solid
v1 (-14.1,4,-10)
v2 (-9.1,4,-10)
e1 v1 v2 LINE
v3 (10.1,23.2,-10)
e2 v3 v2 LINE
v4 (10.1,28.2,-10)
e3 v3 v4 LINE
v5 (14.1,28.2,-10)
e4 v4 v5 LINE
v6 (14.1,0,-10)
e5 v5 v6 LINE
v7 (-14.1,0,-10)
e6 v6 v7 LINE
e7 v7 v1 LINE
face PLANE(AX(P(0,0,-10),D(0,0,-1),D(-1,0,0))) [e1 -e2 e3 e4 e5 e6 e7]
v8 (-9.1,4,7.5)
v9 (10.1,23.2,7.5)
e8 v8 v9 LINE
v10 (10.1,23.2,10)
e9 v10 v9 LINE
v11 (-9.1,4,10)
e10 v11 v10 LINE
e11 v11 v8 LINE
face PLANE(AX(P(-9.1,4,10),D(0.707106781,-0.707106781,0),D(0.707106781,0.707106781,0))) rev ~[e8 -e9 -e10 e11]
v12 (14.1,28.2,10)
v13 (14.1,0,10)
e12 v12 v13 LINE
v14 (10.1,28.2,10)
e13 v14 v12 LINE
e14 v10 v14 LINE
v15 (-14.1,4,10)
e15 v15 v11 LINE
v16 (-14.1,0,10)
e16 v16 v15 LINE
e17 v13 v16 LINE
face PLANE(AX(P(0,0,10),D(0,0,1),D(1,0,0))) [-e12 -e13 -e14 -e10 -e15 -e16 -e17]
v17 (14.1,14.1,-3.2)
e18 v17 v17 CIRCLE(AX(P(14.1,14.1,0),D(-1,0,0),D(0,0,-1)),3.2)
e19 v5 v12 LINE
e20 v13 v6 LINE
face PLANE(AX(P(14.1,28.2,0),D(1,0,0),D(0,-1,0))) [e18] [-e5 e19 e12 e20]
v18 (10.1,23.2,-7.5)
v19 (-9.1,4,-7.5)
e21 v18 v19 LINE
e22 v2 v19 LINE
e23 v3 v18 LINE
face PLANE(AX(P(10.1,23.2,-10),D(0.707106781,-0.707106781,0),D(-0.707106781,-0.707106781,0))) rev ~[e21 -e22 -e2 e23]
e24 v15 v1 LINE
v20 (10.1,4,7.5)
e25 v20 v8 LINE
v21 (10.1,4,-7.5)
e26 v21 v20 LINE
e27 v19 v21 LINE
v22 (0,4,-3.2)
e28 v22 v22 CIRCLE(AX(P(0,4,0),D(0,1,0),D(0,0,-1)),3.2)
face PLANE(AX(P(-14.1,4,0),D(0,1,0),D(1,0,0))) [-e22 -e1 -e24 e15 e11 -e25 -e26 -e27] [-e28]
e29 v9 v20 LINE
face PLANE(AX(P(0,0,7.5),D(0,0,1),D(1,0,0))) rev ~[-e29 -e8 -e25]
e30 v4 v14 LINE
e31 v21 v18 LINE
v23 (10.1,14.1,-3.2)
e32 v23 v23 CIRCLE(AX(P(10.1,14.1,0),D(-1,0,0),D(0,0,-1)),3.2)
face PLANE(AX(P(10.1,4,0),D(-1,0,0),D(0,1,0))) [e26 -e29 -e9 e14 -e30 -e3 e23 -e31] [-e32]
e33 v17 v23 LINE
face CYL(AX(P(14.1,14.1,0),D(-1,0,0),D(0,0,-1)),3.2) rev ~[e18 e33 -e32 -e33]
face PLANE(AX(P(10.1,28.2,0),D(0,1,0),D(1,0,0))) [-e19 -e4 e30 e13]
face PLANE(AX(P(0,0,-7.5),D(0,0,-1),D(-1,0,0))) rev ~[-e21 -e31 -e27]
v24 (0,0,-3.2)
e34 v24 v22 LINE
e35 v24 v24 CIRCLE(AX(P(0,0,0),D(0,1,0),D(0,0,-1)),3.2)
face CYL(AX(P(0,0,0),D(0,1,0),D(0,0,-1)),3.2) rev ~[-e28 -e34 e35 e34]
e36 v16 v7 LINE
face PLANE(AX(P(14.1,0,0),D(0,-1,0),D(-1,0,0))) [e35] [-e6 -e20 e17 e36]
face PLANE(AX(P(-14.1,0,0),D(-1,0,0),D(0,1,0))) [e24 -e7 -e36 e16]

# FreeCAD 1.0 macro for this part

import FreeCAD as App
import Part
import Sketcher

V = App.Vector
Q = App.Units.Quantity

doc = App.newDocument("Part")
body = doc.addObject("PartDesign::Body", "Body")

sketch1 = body.newObject("Sketcher::SketchObject", "Sketch")
sketch1.AttachmentSupport = (doc.getObject("XY_Plane"), [""])
sketch1.MapMode = "FlatFace"
sketch1.addGeometry([
    Part.LineSegment(V(14.1, 0, 0), V(14.1, 28.2, 0)),
    Part.LineSegment(V(14.1, 28.2, 0), V(10.1, 28.2, 0)),
    Part.LineSegment(V(10.1, 28.2, 0), V(10.1, 4, 0)),
    Part.LineSegment(V(10.1, 4, 0), V(-14.1, 4, 0)),
    Part.LineSegment(V(-14.1, 4, 0), V(-14.1, 0, 0)),
    Part.LineSegment(V(-14.1, 0, 0), V(14.1, 0, 0)),
], False)
sketch1.addConstraint([
    Sketcher.Constraint("Coincident", 0, 2, 1, 1),
    Sketcher.Constraint("Coincident", 1, 2, 2, 1),
    Sketcher.Constraint("Coincident", 2, 2, 3, 1),
    Sketcher.Constraint("Coincident", 3, 2, 4, 1),
    Sketcher.Constraint("Coincident", 4, 2, 5, 1),
    Sketcher.Constraint("Coincident", 5, 2, 0, 1),
    Sketcher.Constraint("Vertical", 0),
    Sketcher.Constraint("Horizontal", 1),
    Sketcher.Constraint("Vertical", 2),
    Sketcher.Constraint("Horizontal", 3),
    Sketcher.Constraint("Vertical", 4),
    Sketcher.Constraint("Horizontal", 5),
    Sketcher.Constraint("Symmetric", 4, 2, 5, 2, -1, 1),
    Sketcher.Constraint("Equal", 5, 0),
    Sketcher.Constraint("Equal", 3, 2),
    Sketcher.Constraint("DistanceX", 1, 2, 1, 1, Q("4 mm")),
    Sketcher.Constraint("DistanceX", 5, 1, 5, 2, Q("28.2 mm")),
])
pad1 = body.newObject("PartDesign::Pad", "Pad")
pad1.Profile = sketch1
pad1.Length = 20
pad1.Midplane = True

sketch2 = body.newObject("Sketcher::SketchObject", "Sketch001")
sketch2.AttachmentSupport = (doc.getObject("XY_Plane"), [""])
sketch2.MapMode = "FlatFace"
sketch2.AttachmentOffset = App.Placement(V(0, 0, 10), App.Rotation())
sketch2.addGeometry([
    Part.LineSegment(V(-9, 4, 0), V(10, 4, 0)),
    Part.LineSegment(V(10, 4, 0), V(10, 23, 0)),
    Part.LineSegment(V(10, 23, 0), V(-9, 4, 0)),
], False)
sketch2.addConstraint([
    Sketcher.Constraint("Coincident", 0, 2, 1, 1),
    Sketcher.Constraint("Coincident", 1, 2, 2, 1),
    Sketcher.Constraint("Coincident", 2, 2, 0, 1),
    Sketcher.Constraint("Horizontal", 0),
    Sketcher.Constraint("Vertical", 1),
    Sketcher.Constraint("Equal", 0, 1),
    Sketcher.Constraint("DistanceX", 0, 1, 0, 2, Q("19.2 mm")),
    Sketcher.Constraint("DistanceY", -1, 1, 0, 2, Q("4 mm")),
    Sketcher.Constraint("DistanceX", -1, 1, 0, 2, Q("10.1 mm")),
])
pad2 = body.newObject("PartDesign::Pad", "Pad001")
pad2.Profile = sketch2
pad2.Length = 2.5
pad2.Reversed = True

sketch3 = body.newObject("Sketcher::SketchObject", "Sketch002")
sketch3.AttachmentSupport = (doc.getObject("XY_Plane"), [""])
sketch3.MapMode = "FlatFace"
sketch3.AttachmentOffset = App.Placement(V(0, 0, -10), App.Rotation())
sketch3.addGeometry([
    Part.LineSegment(V(10, 23, 0), V(10, 4, 0)),
    Part.LineSegment(V(10, 4, 0), V(-9, 4, 0)),
    Part.LineSegment(V(-9, 4, 0), V(10, 23, 0)),
], False)
sketch3.addConstraint([
    Sketcher.Constraint("Coincident", 0, 2, 1, 1),
    Sketcher.Constraint("Coincident", 1, 2, 2, 1),
    Sketcher.Constraint("Coincident", 2, 2, 0, 1),
    Sketcher.Constraint("Vertical", 0),
    Sketcher.Constraint("Horizontal", 1),
    Sketcher.Constraint("Equal", 1, 0),
    Sketcher.Constraint("DistanceX", 1, 2, 1, 1, Q("19.2 mm")),
    Sketcher.Constraint("DistanceY", -1, 1, 0, 2, Q("4 mm")),
    Sketcher.Constraint("DistanceX", -1, 1, 0, 2, Q("10.1 mm")),
])
pad3 = body.newObject("PartDesign::Pad", "Pad002")
pad3.Profile = sketch3
pad3.Length = 2.5

sketch4 = body.newObject("Sketcher::SketchObject", "Sketch003")
sketch4.AttachmentSupport = (doc.getObject("XZ_Plane"), [""])
sketch4.MapMode = "FlatFace"
sketch4.addGeometry(Part.Circle(V(0, 0, 0), V(0, 0, 1), 3.2), False)
sketch4.addConstraint([
    Sketcher.Constraint("Coincident", 0, 3, -1, 1),
    Sketcher.Constraint("Diameter", 0, Q("6.4 mm")),
])
doc.recompute()
hole = body.newObject("PartDesign::Hole", "Hole")
hole.Profile = sketch4
hole.ThreadType = "None"
hole.Diameter = 6.4
hole.DepthType = "ThroughAll"

sketch5 = body.newObject("Sketcher::SketchObject", "Sketch004")
sketch5.AttachmentSupport = (doc.getObject("YZ_Plane"), [""])
sketch5.MapMode = "FlatFace"
sketch5.AttachmentOffset = App.Placement(V(0, 0, 14.1), App.Rotation())
sketch5.addGeometry(Part.Circle(V(14.1, 0, 0), V(0, 0, 1), 3.2), False)
sketch5.addConstraint([
    Sketcher.Constraint("PointOnObject", 0, 3, -1),
    Sketcher.Constraint("Diameter", 0, Q("6.4 mm")),
    Sketcher.Constraint("DistanceX", -1, 1, 0, 3, Q("14.1 mm")),
])
doc.recompute()
hole2 = body.newObject("PartDesign::Hole", "Hole001")
hole2.Profile = sketch5
hole2.ThreadType = "None"
hole2.Diameter = 6.4
hole2.DepthType = "ThroughAll"

doc.recompute()
